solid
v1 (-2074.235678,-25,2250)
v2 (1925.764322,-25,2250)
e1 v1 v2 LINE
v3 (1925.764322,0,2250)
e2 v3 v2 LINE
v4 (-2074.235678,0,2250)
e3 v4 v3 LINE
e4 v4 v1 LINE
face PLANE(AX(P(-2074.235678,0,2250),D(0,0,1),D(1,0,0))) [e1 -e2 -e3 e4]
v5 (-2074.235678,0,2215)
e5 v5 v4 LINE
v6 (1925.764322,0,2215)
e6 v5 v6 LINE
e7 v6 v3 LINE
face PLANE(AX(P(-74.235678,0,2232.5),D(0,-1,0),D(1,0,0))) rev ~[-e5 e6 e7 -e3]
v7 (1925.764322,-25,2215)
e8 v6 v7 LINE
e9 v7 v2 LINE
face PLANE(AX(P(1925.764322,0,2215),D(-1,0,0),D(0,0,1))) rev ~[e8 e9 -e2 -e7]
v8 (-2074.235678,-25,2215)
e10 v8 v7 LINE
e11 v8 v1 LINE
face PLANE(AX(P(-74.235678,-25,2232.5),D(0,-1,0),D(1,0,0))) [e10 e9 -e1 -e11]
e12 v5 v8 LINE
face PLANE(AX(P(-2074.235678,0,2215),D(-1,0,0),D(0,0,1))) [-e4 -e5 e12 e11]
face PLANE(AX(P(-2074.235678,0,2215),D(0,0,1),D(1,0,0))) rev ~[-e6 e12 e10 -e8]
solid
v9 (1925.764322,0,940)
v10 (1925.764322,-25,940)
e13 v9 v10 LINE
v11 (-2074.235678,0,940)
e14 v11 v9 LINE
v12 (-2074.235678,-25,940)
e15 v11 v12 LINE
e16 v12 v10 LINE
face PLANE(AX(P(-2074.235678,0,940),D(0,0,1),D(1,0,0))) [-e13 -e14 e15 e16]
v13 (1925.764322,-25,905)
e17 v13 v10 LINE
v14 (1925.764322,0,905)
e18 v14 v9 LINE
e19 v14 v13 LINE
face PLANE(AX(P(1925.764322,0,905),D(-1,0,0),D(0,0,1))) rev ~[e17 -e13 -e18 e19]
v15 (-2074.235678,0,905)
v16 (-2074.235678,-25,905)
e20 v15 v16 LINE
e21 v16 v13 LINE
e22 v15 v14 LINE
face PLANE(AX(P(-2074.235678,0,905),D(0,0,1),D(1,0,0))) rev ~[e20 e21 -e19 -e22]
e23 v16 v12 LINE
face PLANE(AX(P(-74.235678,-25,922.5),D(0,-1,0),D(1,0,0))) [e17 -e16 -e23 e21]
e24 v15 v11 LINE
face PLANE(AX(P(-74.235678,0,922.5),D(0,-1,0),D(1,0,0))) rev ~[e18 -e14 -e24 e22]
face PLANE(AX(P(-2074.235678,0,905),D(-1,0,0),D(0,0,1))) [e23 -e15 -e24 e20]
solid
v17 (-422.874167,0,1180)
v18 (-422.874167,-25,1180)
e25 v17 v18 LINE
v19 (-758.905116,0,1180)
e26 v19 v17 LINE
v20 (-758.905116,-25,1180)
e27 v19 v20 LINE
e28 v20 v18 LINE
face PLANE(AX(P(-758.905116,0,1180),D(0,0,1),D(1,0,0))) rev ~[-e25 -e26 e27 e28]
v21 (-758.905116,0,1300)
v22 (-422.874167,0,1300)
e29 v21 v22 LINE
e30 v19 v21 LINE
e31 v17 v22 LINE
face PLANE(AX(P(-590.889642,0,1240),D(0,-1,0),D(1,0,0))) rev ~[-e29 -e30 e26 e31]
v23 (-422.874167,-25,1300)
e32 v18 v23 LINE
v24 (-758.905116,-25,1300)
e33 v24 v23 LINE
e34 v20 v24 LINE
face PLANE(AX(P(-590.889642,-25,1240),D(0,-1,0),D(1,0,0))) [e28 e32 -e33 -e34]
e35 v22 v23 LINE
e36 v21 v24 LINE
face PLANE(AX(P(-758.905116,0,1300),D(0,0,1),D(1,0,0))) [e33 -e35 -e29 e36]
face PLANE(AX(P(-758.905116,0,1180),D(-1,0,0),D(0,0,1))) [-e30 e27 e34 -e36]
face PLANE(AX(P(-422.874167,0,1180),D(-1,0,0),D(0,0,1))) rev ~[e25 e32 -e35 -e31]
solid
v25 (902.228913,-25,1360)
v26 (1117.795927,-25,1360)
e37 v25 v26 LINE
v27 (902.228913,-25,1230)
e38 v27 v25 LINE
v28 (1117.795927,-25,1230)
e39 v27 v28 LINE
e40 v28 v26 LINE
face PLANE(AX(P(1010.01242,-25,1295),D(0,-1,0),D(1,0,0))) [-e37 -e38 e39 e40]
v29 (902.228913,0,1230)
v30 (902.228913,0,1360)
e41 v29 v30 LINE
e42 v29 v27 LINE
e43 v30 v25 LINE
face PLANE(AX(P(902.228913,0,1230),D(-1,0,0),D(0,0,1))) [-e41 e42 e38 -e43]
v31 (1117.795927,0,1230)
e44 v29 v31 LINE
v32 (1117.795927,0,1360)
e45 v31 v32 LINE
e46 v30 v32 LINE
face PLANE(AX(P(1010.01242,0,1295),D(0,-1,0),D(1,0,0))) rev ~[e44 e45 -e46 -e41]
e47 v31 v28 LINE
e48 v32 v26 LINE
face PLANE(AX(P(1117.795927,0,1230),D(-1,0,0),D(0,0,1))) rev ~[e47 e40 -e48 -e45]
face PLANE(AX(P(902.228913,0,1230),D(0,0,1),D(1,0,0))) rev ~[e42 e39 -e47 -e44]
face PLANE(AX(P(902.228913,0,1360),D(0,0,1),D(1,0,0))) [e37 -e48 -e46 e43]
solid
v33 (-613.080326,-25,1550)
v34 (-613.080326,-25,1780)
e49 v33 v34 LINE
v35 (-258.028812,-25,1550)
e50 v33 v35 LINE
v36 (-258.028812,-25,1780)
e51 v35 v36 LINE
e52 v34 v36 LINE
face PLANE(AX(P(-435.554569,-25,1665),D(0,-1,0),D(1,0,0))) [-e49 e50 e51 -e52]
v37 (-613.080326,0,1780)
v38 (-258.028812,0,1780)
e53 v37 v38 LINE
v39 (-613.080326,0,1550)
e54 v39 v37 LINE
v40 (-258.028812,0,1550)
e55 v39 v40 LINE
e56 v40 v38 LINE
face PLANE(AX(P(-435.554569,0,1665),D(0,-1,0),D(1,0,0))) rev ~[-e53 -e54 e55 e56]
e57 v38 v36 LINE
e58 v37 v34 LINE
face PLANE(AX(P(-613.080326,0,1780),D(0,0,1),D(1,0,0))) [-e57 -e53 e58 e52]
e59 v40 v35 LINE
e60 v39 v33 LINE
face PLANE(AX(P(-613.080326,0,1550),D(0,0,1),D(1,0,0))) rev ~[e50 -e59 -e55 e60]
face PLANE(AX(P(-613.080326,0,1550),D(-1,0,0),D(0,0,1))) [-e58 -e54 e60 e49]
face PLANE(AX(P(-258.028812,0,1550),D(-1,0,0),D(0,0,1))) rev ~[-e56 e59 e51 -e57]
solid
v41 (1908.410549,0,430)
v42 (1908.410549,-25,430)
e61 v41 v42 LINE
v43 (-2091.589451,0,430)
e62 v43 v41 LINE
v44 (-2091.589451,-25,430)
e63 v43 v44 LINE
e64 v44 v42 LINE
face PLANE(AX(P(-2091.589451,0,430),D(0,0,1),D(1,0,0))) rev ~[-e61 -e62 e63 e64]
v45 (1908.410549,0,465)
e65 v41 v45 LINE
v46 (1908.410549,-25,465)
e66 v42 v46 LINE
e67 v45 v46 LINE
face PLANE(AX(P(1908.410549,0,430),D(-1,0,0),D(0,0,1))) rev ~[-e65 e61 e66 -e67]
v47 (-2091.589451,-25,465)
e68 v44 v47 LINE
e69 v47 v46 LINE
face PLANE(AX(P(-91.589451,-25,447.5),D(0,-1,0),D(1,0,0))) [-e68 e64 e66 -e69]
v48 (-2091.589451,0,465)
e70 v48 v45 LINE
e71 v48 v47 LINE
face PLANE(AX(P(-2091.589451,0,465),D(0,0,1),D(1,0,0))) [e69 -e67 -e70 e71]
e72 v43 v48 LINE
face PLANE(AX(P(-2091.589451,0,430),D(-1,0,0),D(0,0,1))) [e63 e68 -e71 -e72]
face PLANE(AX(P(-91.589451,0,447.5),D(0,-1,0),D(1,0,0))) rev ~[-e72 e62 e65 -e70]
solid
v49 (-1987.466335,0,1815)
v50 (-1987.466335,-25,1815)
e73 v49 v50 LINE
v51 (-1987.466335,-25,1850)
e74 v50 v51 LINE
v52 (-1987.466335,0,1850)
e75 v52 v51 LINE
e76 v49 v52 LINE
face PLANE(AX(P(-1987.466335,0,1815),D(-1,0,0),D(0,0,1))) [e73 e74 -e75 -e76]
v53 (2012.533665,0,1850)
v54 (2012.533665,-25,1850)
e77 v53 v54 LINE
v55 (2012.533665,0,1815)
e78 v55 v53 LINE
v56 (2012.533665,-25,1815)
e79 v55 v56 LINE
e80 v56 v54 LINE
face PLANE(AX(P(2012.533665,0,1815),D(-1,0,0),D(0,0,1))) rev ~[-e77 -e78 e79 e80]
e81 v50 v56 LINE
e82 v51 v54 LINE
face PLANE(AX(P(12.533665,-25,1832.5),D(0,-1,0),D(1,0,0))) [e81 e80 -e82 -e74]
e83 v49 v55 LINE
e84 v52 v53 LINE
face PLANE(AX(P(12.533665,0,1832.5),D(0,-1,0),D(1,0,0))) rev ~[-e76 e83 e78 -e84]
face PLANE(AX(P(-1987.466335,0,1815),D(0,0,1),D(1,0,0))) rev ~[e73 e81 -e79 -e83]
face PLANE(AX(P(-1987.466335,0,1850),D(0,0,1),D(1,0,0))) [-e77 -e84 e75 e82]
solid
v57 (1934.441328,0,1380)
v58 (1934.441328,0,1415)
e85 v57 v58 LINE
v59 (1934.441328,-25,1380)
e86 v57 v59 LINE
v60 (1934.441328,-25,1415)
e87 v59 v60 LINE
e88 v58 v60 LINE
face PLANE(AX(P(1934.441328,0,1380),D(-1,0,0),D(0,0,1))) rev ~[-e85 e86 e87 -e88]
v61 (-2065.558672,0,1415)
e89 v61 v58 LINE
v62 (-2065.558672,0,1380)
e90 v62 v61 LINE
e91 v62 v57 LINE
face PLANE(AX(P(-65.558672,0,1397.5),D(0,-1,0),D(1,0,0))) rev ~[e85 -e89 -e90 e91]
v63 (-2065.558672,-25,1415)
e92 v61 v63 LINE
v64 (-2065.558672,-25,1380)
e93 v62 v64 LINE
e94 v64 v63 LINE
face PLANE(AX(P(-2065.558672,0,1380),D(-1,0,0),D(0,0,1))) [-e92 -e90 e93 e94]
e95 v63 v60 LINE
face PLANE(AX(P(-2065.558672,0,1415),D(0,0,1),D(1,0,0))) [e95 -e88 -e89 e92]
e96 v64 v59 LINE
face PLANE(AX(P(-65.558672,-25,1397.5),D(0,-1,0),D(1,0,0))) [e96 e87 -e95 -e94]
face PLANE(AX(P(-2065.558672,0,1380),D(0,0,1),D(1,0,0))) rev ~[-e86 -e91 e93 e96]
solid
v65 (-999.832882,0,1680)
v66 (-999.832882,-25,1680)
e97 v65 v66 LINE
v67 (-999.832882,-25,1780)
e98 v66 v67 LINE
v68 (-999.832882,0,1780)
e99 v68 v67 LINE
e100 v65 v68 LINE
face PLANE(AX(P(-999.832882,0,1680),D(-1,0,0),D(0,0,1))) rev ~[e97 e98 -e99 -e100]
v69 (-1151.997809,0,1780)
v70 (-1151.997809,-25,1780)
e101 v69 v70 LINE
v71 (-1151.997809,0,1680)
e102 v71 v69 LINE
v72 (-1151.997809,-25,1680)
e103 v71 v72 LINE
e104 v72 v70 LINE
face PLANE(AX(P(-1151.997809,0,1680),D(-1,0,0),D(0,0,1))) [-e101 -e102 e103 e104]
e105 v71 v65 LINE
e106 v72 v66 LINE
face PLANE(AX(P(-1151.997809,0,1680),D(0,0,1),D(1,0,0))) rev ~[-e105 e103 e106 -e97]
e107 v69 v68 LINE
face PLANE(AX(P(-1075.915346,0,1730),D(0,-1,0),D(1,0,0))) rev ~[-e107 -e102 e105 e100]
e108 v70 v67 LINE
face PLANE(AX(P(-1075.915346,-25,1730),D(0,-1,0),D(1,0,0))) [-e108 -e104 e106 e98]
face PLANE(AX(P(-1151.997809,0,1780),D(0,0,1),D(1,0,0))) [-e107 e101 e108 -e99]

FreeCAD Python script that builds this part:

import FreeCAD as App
import Part
import Sketcher

V = App.Vector
Q = App.Units.Quantity

doc = App.newDocument("Part")
body = doc.addObject("PartDesign::Body", "Body")
body.AllowCompound = True

sketch1 = doc.addObject("Sketcher::SketchObject", "Sketch")
body.addObject(sketch1)
sketch1.AttachmentSupport = (doc.XZ_Plane, [""])
sketch1.MapMode = "FlatFace"
sketch1.addGeometry([
    Part.LineSegment(V(902.228913, 1360, 0), V(902.228913, 1230, 0)),
    Part.LineSegment(V(902.228913, 1230, 0), V(1117.795927, 1230, 0)),
    Part.LineSegment(V(1117.795927, 1230, 0), V(1117.795927, 1360, 0)),
    Part.LineSegment(V(1117.795927, 1360, 0), V(902.228913, 1360, 0)),
    Part.LineSegment(V(-758.905116, 1300, 0), V(-758.905116, 1180, 0)),
    Part.LineSegment(V(-758.905116, 1180, 0), V(-422.874167, 1180, 0)),
    Part.LineSegment(V(-422.874167, 1180, 0), V(-422.874167, 1300, 0)),
    Part.LineSegment(V(-422.874167, 1300, 0), V(-758.905116, 1300, 0)),
    Part.LineSegment(V(-613.080326, 1780, 0), V(-613.080326, 1550, 0)),
    Part.LineSegment(V(-613.080326, 1550, 0), V(-258.028812, 1550, 0)),
    Part.LineSegment(V(-258.028812, 1550, 0), V(-258.028812, 1780, 0)),
    Part.LineSegment(V(-258.028812, 1780, 0), V(-613.080326, 1780, 0)),
    Part.LineSegment(V(-2091.589451, 465, 0), V(-2091.589451, 430, 0)),
    Part.LineSegment(V(-2091.589451, 430, 0), V(1908.410549, 430, 0)),
    Part.LineSegment(V(1908.410549, 430, 0), V(1908.410549, 465, 0)),
    Part.LineSegment(V(1908.410549, 465, 0), V(-2091.589451, 465, 0)),
    Part.LineSegment(V(-2074.235678, 940, 0), V(-2074.235678, 905, 0)),
    Part.LineSegment(V(-2074.235678, 905, 0), V(1925.764322, 905, 0)),
    Part.LineSegment(V(1925.764322, 905, 0), V(1925.764322, 940, 0)),
    Part.LineSegment(V(1925.764322, 940, 0), V(-2074.235678, 940, 0)),
    Part.LineSegment(V(-2065.558672, 1415, 0), V(-2065.558672, 1380, 0)),
    Part.LineSegment(V(-2065.558672, 1380, 0), V(1934.441328, 1380, 0)),
    Part.LineSegment(V(1934.441328, 1380, 0), V(1934.441328, 1415, 0)),
    Part.LineSegment(V(1934.441328, 1415, 0), V(-2065.558672, 1415, 0)),
    Part.LineSegment(V(-1987.466335, 1850, 0), V(-1987.466335, 1815, 0)),
    Part.LineSegment(V(-1987.466335, 1815, 0), V(2012.533665, 1815, 0)),
    Part.LineSegment(V(2012.533665, 1815, 0), V(2012.533665, 1850, 0)),
    Part.LineSegment(V(2012.533665, 1850, 0), V(-1987.466335, 1850, 0)),
    Part.LineSegment(V(-2074.235678, 2250, 0), V(-2074.235678, 2215, 0)),
    Part.LineSegment(V(-2074.235678, 2215, 0), V(1925.764322, 2215, 0)),
    Part.LineSegment(V(1925.764322, 2215, 0), V(1925.764322, 2250, 0)),
    Part.LineSegment(V(1925.764322, 2250, 0), V(-2074.235678, 2250, 0)),
    Part.LineSegment(V(-1151.997809, 1780, 0), V(-1151.997809, 1680, 0)),
    Part.LineSegment(V(-1151.997809, 1680, 0), V(-999.832882, 1680, 0)),
    Part.LineSegment(V(-999.832882, 1680, 0), V(-999.832882, 1780, 0)),
    Part.LineSegment(V(-999.832882, 1780, 0), V(-1151.997809, 1780, 0)),
], False)
sketch1.addConstraint([
    Sketcher.Constraint("Coincident", 0, 2, 1, 1),
    Sketcher.Constraint("Coincident", 1, 2, 2, 1),
    Sketcher.Constraint("Coincident", 2, 2, 3, 1),
    Sketcher.Constraint("Coincident", 3, 2, 0, 1),
    Sketcher.Constraint("Coincident", 4, 2, 5, 1),
    Sketcher.Constraint("Coincident", 5, 2, 6, 1),
    Sketcher.Constraint("Coincident", 6, 2, 7, 1),
    Sketcher.Constraint("Coincident", 7, 2, 4, 1),
    Sketcher.Constraint("Coincident", 8, 2, 9, 1),
    Sketcher.Constraint("Coincident", 9, 2, 10, 1),
    Sketcher.Constraint("Coincident", 10, 2, 11, 1),
    Sketcher.Constraint("Coincident", 11, 2, 8, 1),
    Sketcher.Constraint("Coincident", 12, 2, 13, 1),
    Sketcher.Constraint("Coincident", 13, 2, 14, 1),
    Sketcher.Constraint("Coincident", 14, 2, 15, 1),
    Sketcher.Constraint("Coincident", 15, 2, 12, 1),
    Sketcher.Constraint("Coincident", 16, 2, 17, 1),
    Sketcher.Constraint("Coincident", 17, 2, 18, 1),
    Sketcher.Constraint("Coincident", 18, 2, 19, 1),
    Sketcher.Constraint("Coincident", 19, 2, 16, 1),
    Sketcher.Constraint("Coincident", 20, 2, 21, 1),
    Sketcher.Constraint("Coincident", 21, 2, 22, 1),
    Sketcher.Constraint("Coincident", 22, 2, 23, 1),
    Sketcher.Constraint("Coincident", 23, 2, 20, 1),
    Sketcher.Constraint("Coincident", 24, 2, 25, 1),
    Sketcher.Constraint("Coincident", 25, 2, 26, 1),
    Sketcher.Constraint("Coincident", 26, 2, 27, 1),
    Sketcher.Constraint("Coincident", 27, 2, 24, 1),
    Sketcher.Constraint("Coincident", 28, 2, 29, 1),
    Sketcher.Constraint("Coincident", 29, 2, 30, 1),
    Sketcher.Constraint("Coincident", 30, 2, 31, 1),
    Sketcher.Constraint("Coincident", 31, 2, 28, 1),
    Sketcher.Constraint("Coincident", 32, 2, 33, 1),
    Sketcher.Constraint("Coincident", 33, 2, 34, 1),
    Sketcher.Constraint("Coincident", 34, 2, 35, 1),
    Sketcher.Constraint("Coincident", 35, 2, 32, 1),
    Sketcher.Constraint("Vertical", 0),
    Sketcher.Constraint("Horizontal", 1),
    Sketcher.Constraint("Vertical", 2),
    Sketcher.Constraint("Horizontal", 3),
    Sketcher.Constraint("Vertical", 4),
    Sketcher.Constraint("Horizontal", 5),
    Sketcher.Constraint("Vertical", 6),
    Sketcher.Constraint("Horizontal", 7),
    Sketcher.Constraint("Vertical", 8),
    Sketcher.Constraint("Horizontal", 9),
    Sketcher.Constraint("Vertical", 10),
    Sketcher.Constraint("Horizontal", 11),
    Sketcher.Constraint("Vertical", 12),
    Sketcher.Constraint("Horizontal", 13),
    Sketcher.Constraint("Vertical", 14),
    Sketcher.Constraint("Horizontal", 15),
    Sketcher.Constraint("Vertical", 16),
    Sketcher.Constraint("Horizontal", 17),
    Sketcher.Constraint("Vertical", 18),
    Sketcher.Constraint("Horizontal", 19),
    Sketcher.Constraint("Vertical", 20),
    Sketcher.Constraint("Horizontal", 21),
    Sketcher.Constraint("Vertical", 22),
    Sketcher.Constraint("Horizontal", 23),
    Sketcher.Constraint("Vertical", 24),
    Sketcher.Constraint("Horizontal", 25),
    Sketcher.Constraint("Vertical", 26),
    Sketcher.Constraint("Horizontal", 27),
    Sketcher.Constraint("Vertical", 28),
    Sketcher.Constraint("Horizontal", 29),
    Sketcher.Constraint("Vertical", 30),
    Sketcher.Constraint("Horizontal", 31),
    Sketcher.Constraint("Vertical", 32),
    Sketcher.Constraint("Horizontal", 33),
    Sketcher.Constraint("Vertical", 34),
    Sketcher.Constraint("Horizontal", 35),
    Sketcher.Constraint("Horizontal", 11, 2, 34, 2),
    Sketcher.Constraint("Vertical", 19, 2, 28, 2),
    Sketcher.Constraint("Vertical", 18, 2, 29, 2),
    Sketcher.Constraint("Equal", 15, 17),
    Sketcher.Constraint("Equal", 19, 21),
    Sketcher.Constraint("Equal", 23, 25),
    Sketcher.Constraint("Equal", 14, 16),
    Sketcher.Constraint("Equal", 18, 20),
    Sketcher.Constraint("Equal", 22, 24),
    Sketcher.Constraint("Equal", 26, 28),
    Sketcher.Constraint("DistanceX", 13, 1, 13, 2, Q("4000 mm")),
    Sketcher.Constraint("DistanceY", 0, 2, 0, 1, Q("130 mm")),
    Sketcher.Constraint("DistanceY", 4, 2, 4, 1, Q("120 mm")),
    Sketcher.Constraint("DistanceY", 8, 2, 8, 1, Q("230 mm")),
    Sketcher.Constraint("DistanceY", 12, 2, 12, 1, Q("35 mm")),
    Sketcher.Constraint("DistanceY", 32, 2, 32, 1, Q("100 mm")),
    Sketcher.Constraint("DistanceY", -1, 1, 0, 2, Q("1230 mm")),
    Sketcher.Constraint("DistanceY", -1, 1, 4, 2, Q("1180 mm")),
    Sketcher.Constraint("DistanceY", -1, 1, 8, 2, Q("1550 mm")),
    Sketcher.Constraint("DistanceY", -1, 1, 12, 2, Q("430 mm")),
    Sketcher.Constraint("DistanceY", -1, 1, 16, 2, Q("905 mm")),
    Sketcher.Constraint("DistanceY", -1, 1, 20, 2, Q("1380 mm")),
    Sketcher.Constraint("DistanceY", -1, 1, 24, 2, Q("1815 mm")),
    Sketcher.Constraint("DistanceY", -1, 1, 28, 2, Q("2215 mm")),
    Sketcher.Constraint("DistanceX", 5, 1, 5, 2, Q("336.030949 mm")),
    Sketcher.Constraint("DistanceX", 2, 2, 21, 2, Q("816.645401 mm")),
    Sketcher.Constraint("DistanceX", 1, 1, 1, 2, Q("215.567014 mm")),
    Sketcher.Constraint("DistanceX", 9, 1, 9, 2, Q("355.051514 mm")),
    Sketcher.Constraint("DistanceX", 33, 1, 33, 2, Q("152.164927 mm")),
    Sketcher.Constraint("DistanceX", 9, 2, -1, 1, Q("258.028812 mm")),
    Sketcher.Constraint("DistanceX", 12, 2, -1, 1, Q("2091.589451 mm")),
    Sketcher.Constraint("DistanceX", 16, 2, -1, 1, Q("2074.235678 mm")),
    Sketcher.Constraint("DistanceX", -1, 1, 21, 2, Q("1934.441328 mm")),
    Sketcher.Constraint("DistanceX", 32, 2, -1, 1, Q("1151.997809 mm")),
    Sketcher.Constraint("DistanceX", 4, 2, 0, 2, Q("1661.134029 mm")),
    Sketcher.Constraint("DistanceX", 24, 2, 7, 2, Q("1228.561218 mm")),
])
pad1 = doc.addObject("PartDesign::Pad", "Pad")
body.addObject(pad1)
pad1.Profile = sketch1
pad1.Length = 25

doc.recompute()
